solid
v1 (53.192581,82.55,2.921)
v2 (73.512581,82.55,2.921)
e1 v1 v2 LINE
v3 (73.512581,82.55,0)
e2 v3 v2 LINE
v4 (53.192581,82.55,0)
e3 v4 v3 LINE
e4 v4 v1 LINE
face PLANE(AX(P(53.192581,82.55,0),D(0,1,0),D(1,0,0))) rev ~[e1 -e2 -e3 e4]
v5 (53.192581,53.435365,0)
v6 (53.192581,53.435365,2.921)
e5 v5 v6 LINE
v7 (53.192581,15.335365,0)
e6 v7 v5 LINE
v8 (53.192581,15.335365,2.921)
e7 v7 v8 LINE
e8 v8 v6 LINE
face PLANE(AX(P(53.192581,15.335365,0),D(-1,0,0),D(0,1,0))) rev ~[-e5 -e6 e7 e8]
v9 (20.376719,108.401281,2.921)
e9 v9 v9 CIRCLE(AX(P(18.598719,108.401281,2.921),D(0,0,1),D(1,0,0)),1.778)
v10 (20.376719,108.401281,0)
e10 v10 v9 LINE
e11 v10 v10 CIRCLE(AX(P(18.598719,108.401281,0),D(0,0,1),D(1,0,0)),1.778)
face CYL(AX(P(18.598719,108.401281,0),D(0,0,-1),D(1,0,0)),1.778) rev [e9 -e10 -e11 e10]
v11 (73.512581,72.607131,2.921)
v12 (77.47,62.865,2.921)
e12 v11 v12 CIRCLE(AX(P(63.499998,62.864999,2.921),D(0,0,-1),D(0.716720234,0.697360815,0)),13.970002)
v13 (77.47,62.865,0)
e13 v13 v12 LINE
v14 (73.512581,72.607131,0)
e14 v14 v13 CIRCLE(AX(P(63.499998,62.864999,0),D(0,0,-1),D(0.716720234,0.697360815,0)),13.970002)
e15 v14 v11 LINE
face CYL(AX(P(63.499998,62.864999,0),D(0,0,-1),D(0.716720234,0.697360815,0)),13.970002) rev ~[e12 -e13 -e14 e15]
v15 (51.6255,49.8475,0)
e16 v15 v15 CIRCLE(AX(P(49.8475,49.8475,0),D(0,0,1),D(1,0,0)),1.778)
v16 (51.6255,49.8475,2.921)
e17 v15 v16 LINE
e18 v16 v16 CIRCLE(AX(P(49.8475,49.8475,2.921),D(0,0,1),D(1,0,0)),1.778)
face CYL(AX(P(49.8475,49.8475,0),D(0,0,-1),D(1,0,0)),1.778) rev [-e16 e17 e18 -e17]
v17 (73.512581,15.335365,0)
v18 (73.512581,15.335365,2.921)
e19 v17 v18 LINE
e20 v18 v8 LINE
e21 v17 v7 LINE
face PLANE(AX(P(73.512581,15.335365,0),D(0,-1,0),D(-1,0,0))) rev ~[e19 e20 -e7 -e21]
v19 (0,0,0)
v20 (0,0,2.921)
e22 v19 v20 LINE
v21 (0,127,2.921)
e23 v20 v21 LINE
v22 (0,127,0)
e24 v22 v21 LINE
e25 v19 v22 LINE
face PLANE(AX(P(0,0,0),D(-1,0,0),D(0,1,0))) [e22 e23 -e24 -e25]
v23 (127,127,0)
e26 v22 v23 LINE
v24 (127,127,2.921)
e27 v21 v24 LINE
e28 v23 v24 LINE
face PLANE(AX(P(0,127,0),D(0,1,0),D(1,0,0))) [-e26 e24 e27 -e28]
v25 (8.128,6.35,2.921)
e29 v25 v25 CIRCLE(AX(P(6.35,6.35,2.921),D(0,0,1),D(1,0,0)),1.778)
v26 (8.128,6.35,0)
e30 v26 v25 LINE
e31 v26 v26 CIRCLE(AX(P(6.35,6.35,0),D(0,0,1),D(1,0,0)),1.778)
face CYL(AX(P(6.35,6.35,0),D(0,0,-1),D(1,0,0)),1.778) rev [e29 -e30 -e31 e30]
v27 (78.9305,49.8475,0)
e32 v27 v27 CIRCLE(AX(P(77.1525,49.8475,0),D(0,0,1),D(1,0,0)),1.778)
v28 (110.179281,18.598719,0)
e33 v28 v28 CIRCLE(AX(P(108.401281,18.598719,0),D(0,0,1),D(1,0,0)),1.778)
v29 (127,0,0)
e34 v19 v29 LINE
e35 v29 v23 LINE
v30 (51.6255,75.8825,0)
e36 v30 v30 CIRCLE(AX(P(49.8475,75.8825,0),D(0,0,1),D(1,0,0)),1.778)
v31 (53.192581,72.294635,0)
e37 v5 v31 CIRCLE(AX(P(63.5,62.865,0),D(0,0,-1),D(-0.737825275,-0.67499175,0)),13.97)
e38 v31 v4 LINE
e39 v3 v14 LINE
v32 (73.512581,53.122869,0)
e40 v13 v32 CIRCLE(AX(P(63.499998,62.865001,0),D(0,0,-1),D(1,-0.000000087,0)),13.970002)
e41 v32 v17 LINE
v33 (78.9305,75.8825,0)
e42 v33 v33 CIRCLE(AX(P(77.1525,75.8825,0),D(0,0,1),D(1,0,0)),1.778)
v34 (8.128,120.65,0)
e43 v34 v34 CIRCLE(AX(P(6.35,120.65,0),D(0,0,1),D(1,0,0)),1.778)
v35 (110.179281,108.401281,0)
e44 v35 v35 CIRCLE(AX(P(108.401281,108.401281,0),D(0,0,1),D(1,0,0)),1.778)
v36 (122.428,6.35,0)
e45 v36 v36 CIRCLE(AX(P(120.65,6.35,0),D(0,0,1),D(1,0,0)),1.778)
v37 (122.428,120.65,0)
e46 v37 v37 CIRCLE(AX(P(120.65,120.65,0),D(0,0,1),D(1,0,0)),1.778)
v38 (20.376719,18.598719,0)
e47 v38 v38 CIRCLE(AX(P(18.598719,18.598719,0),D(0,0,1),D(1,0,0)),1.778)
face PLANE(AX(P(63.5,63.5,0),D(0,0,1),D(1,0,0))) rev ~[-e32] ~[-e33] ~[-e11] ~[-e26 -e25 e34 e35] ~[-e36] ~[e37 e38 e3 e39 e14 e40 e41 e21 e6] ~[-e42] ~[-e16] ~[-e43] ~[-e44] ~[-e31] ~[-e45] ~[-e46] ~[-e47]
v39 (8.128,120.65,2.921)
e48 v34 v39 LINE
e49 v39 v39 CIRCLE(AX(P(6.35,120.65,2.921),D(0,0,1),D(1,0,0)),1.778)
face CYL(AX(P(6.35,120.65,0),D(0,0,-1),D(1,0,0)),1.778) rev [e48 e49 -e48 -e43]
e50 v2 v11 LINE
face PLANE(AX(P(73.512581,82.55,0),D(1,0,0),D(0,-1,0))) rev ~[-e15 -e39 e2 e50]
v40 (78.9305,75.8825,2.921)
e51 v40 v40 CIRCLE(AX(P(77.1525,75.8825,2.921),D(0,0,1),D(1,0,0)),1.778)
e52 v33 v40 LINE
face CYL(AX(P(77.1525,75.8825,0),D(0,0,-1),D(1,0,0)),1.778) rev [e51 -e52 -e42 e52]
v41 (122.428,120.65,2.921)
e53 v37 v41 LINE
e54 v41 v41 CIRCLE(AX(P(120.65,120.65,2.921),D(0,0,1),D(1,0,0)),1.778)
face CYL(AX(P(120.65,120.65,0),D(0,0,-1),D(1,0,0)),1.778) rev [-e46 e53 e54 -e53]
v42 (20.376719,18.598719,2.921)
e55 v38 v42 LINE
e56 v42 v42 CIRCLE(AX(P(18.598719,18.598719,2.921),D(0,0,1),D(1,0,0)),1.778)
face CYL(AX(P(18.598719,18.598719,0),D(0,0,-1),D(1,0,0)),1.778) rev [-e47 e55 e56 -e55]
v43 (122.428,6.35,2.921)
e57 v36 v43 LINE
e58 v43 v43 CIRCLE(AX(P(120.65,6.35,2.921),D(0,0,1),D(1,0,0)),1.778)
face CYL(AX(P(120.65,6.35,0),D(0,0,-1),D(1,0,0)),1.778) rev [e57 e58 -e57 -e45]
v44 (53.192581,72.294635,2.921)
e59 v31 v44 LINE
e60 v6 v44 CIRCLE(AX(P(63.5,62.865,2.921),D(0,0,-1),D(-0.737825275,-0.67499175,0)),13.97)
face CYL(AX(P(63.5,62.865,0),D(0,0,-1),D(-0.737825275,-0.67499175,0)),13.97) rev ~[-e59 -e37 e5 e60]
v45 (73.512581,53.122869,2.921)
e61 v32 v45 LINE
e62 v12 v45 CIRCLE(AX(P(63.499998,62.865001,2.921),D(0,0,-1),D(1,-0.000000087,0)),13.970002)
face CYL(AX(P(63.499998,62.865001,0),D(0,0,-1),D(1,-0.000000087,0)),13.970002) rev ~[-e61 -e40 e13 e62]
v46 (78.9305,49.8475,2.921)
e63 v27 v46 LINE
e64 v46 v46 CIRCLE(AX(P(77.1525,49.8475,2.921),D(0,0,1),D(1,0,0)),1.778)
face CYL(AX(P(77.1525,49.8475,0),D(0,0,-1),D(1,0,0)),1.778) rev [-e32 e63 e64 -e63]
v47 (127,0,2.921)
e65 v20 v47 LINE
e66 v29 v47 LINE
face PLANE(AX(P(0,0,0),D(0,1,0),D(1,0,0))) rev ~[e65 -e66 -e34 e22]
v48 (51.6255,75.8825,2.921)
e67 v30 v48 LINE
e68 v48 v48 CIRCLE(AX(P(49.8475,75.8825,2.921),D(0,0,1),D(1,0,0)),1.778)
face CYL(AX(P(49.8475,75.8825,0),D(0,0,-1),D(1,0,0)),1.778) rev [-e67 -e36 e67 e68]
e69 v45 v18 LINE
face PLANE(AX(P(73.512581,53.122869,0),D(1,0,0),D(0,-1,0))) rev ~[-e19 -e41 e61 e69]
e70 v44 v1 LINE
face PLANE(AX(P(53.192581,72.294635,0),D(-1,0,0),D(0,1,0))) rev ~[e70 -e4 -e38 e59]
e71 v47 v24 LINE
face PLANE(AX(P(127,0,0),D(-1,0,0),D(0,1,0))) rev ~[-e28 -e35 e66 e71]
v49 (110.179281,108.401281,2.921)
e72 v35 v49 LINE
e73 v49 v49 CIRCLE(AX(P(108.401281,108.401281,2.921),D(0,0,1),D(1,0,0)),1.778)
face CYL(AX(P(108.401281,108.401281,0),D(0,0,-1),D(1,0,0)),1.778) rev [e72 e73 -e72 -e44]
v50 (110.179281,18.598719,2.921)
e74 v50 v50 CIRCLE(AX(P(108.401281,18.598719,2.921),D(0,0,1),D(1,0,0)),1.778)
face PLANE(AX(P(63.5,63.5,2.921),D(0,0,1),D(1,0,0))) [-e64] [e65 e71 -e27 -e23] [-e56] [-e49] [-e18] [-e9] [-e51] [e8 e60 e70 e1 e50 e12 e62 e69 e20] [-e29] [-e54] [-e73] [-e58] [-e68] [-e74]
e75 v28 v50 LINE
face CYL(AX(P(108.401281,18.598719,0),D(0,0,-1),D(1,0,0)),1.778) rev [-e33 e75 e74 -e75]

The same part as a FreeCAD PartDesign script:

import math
import FreeCAD as App
import Part
import Sketcher
from FreeCAD import Vector
Q = App.Units.Quantity

doc = App.newDocument("Part")
params = doc.addObject("Spreadsheet::Sheet", "Params")
for row, (alias, value) in enumerate([
    ("sketch1_diameter", "0.14 in"),
    ("sketch1_width", "5 in"),
    ("sketch1_radius", "0.55 in"),
    ("sketch1_width2", "0.8 in"),
    ("sketch1_height", "1.5 in"),
    ("pad1_length", "0.115 in"),
], start=1):
    params.set(f"A{row}", alias)
    params.set(f"B{row}", "=" + value)
    params.setAlias(f"B{row}", alias)

body = doc.addObject("PartDesign::Body", "Body")

sketch1 = body.newObject("Sketcher::SketchObject", "Sketch")
sketch1.AttachmentSupport = (doc.getObject("XY_Plane"), [""])
sketch1.MapMode = "FlatFace"
sketch1.addGeometry([
    Part.LineSegment(Vector(0, 127, 0), Vector(0, 0, 0)),
    Part.LineSegment(Vector(0, 0, 0), Vector(127, 0, 0)),
    Part.LineSegment(Vector(127, 0, 0), Vector(127, 127, 0)),
    Part.LineSegment(Vector(127, 127, 0), Vector(0, 127, 0)),
    Part.Circle(Vector(6.35, 6.35, 0), Vector(0, 0, 1), 1.778),
    Part.Circle(Vector(18.598719, 18.598719, 0), Vector(0, 0, 1), 1.778),
    Part.Circle(Vector(49.8475, 49.8475, 0), Vector(0, 0, 1), 1.778),
    Part.ArcOfCircle(Part.Circle(Vector(63.5, 62.865, 0), Vector(0, 0, 1), 13.97), math.radians(137.54649), math.radians(222.45351)),
    Part.LineSegment(Vector(53.192581, 72.294635, 0), Vector(53.192581, 82.55, 0)),
    Part.LineSegment(Vector(53.192581, 82.55, 0), Vector(73.512581, 82.55, 0)),
    Part.LineSegment(Vector(73.512581, 82.55, 0), Vector(73.512581, 72.607131, 0)),
    Part.ArcOfCircle(Part.Circle(Vector(63.499998, 62.864999, 0), Vector(0, 0, 1), 13.970002), math.radians(0.000005), math.radians(44.215644)),
    Part.ArcOfCircle(Part.Circle(Vector(63.499998, 62.865001, 0), Vector(0, 0, 1), 13.970002), math.radians(-44.215644), math.radians(-0.000005)),
    Part.LineSegment(Vector(73.512581, 53.122869, 0), Vector(73.512581, 15.335365, 0)),
    Part.LineSegment(Vector(73.512581, 15.335365, 0), Vector(53.192581, 15.335365, 0)),
    Part.LineSegment(Vector(53.192581, 15.335365, 0), Vector(53.192581, 53.435365, 0)),
    Part.Circle(Vector(120.65, 6.35, 0), Vector(0, 0, 1), 1.778),
    Part.Circle(Vector(108.401281, 18.598719, 0), Vector(0, 0, 1), 1.778),
    Part.Circle(Vector(77.1525, 49.8475, 0), Vector(0, 0, 1), 1.778),
    Part.Circle(Vector(49.8475, 75.8825, 0), Vector(0, 0, 1), 1.778),
    Part.Circle(Vector(18.598719, 108.401281, 0), Vector(0, 0, 1), 1.778),
    Part.Circle(Vector(6.35, 120.65, 0), Vector(0, 0, 1), 1.778),
    Part.Circle(Vector(77.1525, 75.8825, 0), Vector(0, 0, 1), 1.778),
    Part.Circle(Vector(108.401281, 108.401281, 0), Vector(0, 0, 1), 1.778),
    Part.Circle(Vector(120.65, 120.65, 0), Vector(0, 0, 1), 1.778),
], False)
sketch1.addConstraint([
    Sketcher.Constraint("Coincident", 0, 2, 1, 1),
    Sketcher.Constraint("Coincident", 1, 2, 2, 1),
    Sketcher.Constraint("Coincident", 2, 2, 3, 1),
    Sketcher.Constraint("Coincident", 3, 2, 0, 1),
    Sketcher.Constraint("Coincident", 7, 1, 8, 1),
    Sketcher.Constraint("Coincident", 8, 2, 9, 1),
    Sketcher.Constraint("Coincident", 9, 2, 10, 1),
    Sketcher.Constraint("Coincident", 10, 2, 11, 2),
    Sketcher.Constraint("Tangent", 11, 1, 12, 2),
    Sketcher.Constraint("Coincident", 12, 1, 13, 1),
    Sketcher.Constraint("Coincident", 13, 2, 14, 1),
    Sketcher.Constraint("Coincident", 14, 2, 15, 1),
    Sketcher.Constraint("Coincident", 15, 2, 7, 2),
    Sketcher.Constraint("Vertical", 0),
    Sketcher.Constraint("Horizontal", 1),
    Sketcher.Constraint("Vertical", 2),
    Sketcher.Constraint("Horizontal", 3),
    Sketcher.Constraint("Vertical", 8),
    Sketcher.Constraint("Horizontal", 9),
    Sketcher.Constraint("Vertical", 10),
    Sketcher.Constraint("Vertical", 13),
    Sketcher.Constraint("Horizontal", 14),
    Sketcher.Constraint("Vertical", 15),
    Sketcher.Constraint("Coincident", 0, 2, -1, 1),
    Sketcher.Constraint("Coincident", 11, 3, 7, 3),
    Sketcher.Constraint("Equal", 4, 5),
    Sketcher.Constraint("Equal", 5, 6),
    Sketcher.Constraint("Equal", 7, 11),
    Sketcher.Constraint("Equal", 11, 12),
    Sketcher.Constraint("Equal", 6, 16),
    Sketcher.Constraint("Equal", 16, 17),
    Sketcher.Constraint("Equal", 17, 18),
    Sketcher.Constraint("Equal", 18, 19),
    Sketcher.Constraint("Equal", 19, 20),
    Sketcher.Constraint("Equal", 20, 21),
    Sketcher.Constraint("Equal", 21, 22),
    Sketcher.Constraint("Equal", 22, 23),
    Sketcher.Constraint("Equal", 23, 24),
    Sketcher.Constraint("Horizontal", 4, 3, 16, 3),
    Sketcher.Constraint("Horizontal", 5, 3, 17, 3),
    Sketcher.Constraint("Horizontal", 6, 3, 18, 3),
    Sketcher.Constraint("Horizontal", 19, 3, 22, 3),
    Sketcher.Constraint("Horizontal", 20, 3, 23, 3),
    Sketcher.Constraint("Horizontal", 21, 3, 24, 3),
    Sketcher.Constraint("Horizontal", 12, 3, 11, 1),
    Sketcher.Constraint("Vertical", 6, 3, 19, 3),
    Sketcher.Constraint("Vertical", 5, 3, 20, 3),
    Sketcher.Constraint("Vertical", 4, 3, 21, 3),
    Sketcher.Constraint("Vertical", 18, 3, 22, 3),
    Sketcher.Constraint("Vertical", 17, 3, 23, 3),
    Sketcher.Constraint("Vertical", 16, 3, 24, 3),
    Sketcher.Constraint("Vertical", 10, 2, 12, 1),
    Sketcher.Constraint("Vertical", 8, 2, 14, 2),
    Sketcher.Constraint("Equal", 3, 0),
    Sketcher.Constraint("Diameter", 4, Q("0.14 in")),
    Sketcher.Constraint("DistanceX", 1, 1, 1, 2, Q("5 in")),
    Sketcher.Constraint("Radius", 7, Q("0.55 in")),
    Sketcher.Constraint("DistanceX", 9, 1, 9, 2, Q("0.8 in")),
    Sketcher.Constraint("DistanceY", 15, 1, 15, 2, Q("1.5 in")),
    Sketcher.Constraint("DistanceX", -1, 1, 7, 3, Q("2.5 in")),
    Sketcher.Constraint("DistanceX", -1, 1, 4, 3, Q("0.25 in")),
    Sketcher.Constraint("DistanceY", -1, 1, 4, 3, Q("0.25 in")),
    Sketcher.Constraint("DistanceX", -1, 1, 16, 3, Q("4.75 in")),
    Sketcher.Constraint("DistanceY", -1, 1, 21, 3, Q("4.75 in")),
    Sketcher.Constraint("DistanceY", -1, 1, 8, 2, Q("3.25 in")),
    Sketcher.Constraint("DistanceY", -1, 1, 7, 3, Q("2.475 in")),
    Sketcher.Constraint("DistanceX", 6, 3, 18, 3, Q("1.075 in")),
    Sketcher.Constraint("DistanceY", 6, 3, 19, 3, Q("1.025 in")),
    Sketcher.Constraint("DistanceX", -1, 1, 6, 3, Q("1.9625 in")),
    Sketcher.Constraint("DistanceY", -1, 1, 6, 3, Q("1.9625 in")),
    Sketcher.Constraint("DistanceY", 10, 2, 10, 1, Q("9.942869 mm")),
    Sketcher.Constraint("DistanceX", 13, 2, 17, 3, Q("34.8887 mm")),
    Sketcher.Constraint("DistanceX", -1, 1, 5, 3, Q("18.598719 mm")),
    Sketcher.Constraint("DistanceY", -1, 1, 5, 3, Q("18.598719 mm")),
    Sketcher.Constraint("DistanceY", -1, 1, 20, 3, Q("108.401281 mm")),
])
sketch1.setExpression("Constraints[54]", "Params.sketch1_diameter")
sketch1.setExpression("Constraints[55]", "Params.sketch1_width")
sketch1.setExpression("Constraints[56]", "Params.sketch1_radius")
sketch1.setExpression("Constraints[57]", "Params.sketch1_width2")
sketch1.setExpression("Constraints[58]", "Params.sketch1_height")
pad1 = body.newObject("PartDesign::Pad", "Pad")
pad1.Profile = sketch1
pad1.setExpression("Length", "Params.pad1_length")

doc.recompute()
